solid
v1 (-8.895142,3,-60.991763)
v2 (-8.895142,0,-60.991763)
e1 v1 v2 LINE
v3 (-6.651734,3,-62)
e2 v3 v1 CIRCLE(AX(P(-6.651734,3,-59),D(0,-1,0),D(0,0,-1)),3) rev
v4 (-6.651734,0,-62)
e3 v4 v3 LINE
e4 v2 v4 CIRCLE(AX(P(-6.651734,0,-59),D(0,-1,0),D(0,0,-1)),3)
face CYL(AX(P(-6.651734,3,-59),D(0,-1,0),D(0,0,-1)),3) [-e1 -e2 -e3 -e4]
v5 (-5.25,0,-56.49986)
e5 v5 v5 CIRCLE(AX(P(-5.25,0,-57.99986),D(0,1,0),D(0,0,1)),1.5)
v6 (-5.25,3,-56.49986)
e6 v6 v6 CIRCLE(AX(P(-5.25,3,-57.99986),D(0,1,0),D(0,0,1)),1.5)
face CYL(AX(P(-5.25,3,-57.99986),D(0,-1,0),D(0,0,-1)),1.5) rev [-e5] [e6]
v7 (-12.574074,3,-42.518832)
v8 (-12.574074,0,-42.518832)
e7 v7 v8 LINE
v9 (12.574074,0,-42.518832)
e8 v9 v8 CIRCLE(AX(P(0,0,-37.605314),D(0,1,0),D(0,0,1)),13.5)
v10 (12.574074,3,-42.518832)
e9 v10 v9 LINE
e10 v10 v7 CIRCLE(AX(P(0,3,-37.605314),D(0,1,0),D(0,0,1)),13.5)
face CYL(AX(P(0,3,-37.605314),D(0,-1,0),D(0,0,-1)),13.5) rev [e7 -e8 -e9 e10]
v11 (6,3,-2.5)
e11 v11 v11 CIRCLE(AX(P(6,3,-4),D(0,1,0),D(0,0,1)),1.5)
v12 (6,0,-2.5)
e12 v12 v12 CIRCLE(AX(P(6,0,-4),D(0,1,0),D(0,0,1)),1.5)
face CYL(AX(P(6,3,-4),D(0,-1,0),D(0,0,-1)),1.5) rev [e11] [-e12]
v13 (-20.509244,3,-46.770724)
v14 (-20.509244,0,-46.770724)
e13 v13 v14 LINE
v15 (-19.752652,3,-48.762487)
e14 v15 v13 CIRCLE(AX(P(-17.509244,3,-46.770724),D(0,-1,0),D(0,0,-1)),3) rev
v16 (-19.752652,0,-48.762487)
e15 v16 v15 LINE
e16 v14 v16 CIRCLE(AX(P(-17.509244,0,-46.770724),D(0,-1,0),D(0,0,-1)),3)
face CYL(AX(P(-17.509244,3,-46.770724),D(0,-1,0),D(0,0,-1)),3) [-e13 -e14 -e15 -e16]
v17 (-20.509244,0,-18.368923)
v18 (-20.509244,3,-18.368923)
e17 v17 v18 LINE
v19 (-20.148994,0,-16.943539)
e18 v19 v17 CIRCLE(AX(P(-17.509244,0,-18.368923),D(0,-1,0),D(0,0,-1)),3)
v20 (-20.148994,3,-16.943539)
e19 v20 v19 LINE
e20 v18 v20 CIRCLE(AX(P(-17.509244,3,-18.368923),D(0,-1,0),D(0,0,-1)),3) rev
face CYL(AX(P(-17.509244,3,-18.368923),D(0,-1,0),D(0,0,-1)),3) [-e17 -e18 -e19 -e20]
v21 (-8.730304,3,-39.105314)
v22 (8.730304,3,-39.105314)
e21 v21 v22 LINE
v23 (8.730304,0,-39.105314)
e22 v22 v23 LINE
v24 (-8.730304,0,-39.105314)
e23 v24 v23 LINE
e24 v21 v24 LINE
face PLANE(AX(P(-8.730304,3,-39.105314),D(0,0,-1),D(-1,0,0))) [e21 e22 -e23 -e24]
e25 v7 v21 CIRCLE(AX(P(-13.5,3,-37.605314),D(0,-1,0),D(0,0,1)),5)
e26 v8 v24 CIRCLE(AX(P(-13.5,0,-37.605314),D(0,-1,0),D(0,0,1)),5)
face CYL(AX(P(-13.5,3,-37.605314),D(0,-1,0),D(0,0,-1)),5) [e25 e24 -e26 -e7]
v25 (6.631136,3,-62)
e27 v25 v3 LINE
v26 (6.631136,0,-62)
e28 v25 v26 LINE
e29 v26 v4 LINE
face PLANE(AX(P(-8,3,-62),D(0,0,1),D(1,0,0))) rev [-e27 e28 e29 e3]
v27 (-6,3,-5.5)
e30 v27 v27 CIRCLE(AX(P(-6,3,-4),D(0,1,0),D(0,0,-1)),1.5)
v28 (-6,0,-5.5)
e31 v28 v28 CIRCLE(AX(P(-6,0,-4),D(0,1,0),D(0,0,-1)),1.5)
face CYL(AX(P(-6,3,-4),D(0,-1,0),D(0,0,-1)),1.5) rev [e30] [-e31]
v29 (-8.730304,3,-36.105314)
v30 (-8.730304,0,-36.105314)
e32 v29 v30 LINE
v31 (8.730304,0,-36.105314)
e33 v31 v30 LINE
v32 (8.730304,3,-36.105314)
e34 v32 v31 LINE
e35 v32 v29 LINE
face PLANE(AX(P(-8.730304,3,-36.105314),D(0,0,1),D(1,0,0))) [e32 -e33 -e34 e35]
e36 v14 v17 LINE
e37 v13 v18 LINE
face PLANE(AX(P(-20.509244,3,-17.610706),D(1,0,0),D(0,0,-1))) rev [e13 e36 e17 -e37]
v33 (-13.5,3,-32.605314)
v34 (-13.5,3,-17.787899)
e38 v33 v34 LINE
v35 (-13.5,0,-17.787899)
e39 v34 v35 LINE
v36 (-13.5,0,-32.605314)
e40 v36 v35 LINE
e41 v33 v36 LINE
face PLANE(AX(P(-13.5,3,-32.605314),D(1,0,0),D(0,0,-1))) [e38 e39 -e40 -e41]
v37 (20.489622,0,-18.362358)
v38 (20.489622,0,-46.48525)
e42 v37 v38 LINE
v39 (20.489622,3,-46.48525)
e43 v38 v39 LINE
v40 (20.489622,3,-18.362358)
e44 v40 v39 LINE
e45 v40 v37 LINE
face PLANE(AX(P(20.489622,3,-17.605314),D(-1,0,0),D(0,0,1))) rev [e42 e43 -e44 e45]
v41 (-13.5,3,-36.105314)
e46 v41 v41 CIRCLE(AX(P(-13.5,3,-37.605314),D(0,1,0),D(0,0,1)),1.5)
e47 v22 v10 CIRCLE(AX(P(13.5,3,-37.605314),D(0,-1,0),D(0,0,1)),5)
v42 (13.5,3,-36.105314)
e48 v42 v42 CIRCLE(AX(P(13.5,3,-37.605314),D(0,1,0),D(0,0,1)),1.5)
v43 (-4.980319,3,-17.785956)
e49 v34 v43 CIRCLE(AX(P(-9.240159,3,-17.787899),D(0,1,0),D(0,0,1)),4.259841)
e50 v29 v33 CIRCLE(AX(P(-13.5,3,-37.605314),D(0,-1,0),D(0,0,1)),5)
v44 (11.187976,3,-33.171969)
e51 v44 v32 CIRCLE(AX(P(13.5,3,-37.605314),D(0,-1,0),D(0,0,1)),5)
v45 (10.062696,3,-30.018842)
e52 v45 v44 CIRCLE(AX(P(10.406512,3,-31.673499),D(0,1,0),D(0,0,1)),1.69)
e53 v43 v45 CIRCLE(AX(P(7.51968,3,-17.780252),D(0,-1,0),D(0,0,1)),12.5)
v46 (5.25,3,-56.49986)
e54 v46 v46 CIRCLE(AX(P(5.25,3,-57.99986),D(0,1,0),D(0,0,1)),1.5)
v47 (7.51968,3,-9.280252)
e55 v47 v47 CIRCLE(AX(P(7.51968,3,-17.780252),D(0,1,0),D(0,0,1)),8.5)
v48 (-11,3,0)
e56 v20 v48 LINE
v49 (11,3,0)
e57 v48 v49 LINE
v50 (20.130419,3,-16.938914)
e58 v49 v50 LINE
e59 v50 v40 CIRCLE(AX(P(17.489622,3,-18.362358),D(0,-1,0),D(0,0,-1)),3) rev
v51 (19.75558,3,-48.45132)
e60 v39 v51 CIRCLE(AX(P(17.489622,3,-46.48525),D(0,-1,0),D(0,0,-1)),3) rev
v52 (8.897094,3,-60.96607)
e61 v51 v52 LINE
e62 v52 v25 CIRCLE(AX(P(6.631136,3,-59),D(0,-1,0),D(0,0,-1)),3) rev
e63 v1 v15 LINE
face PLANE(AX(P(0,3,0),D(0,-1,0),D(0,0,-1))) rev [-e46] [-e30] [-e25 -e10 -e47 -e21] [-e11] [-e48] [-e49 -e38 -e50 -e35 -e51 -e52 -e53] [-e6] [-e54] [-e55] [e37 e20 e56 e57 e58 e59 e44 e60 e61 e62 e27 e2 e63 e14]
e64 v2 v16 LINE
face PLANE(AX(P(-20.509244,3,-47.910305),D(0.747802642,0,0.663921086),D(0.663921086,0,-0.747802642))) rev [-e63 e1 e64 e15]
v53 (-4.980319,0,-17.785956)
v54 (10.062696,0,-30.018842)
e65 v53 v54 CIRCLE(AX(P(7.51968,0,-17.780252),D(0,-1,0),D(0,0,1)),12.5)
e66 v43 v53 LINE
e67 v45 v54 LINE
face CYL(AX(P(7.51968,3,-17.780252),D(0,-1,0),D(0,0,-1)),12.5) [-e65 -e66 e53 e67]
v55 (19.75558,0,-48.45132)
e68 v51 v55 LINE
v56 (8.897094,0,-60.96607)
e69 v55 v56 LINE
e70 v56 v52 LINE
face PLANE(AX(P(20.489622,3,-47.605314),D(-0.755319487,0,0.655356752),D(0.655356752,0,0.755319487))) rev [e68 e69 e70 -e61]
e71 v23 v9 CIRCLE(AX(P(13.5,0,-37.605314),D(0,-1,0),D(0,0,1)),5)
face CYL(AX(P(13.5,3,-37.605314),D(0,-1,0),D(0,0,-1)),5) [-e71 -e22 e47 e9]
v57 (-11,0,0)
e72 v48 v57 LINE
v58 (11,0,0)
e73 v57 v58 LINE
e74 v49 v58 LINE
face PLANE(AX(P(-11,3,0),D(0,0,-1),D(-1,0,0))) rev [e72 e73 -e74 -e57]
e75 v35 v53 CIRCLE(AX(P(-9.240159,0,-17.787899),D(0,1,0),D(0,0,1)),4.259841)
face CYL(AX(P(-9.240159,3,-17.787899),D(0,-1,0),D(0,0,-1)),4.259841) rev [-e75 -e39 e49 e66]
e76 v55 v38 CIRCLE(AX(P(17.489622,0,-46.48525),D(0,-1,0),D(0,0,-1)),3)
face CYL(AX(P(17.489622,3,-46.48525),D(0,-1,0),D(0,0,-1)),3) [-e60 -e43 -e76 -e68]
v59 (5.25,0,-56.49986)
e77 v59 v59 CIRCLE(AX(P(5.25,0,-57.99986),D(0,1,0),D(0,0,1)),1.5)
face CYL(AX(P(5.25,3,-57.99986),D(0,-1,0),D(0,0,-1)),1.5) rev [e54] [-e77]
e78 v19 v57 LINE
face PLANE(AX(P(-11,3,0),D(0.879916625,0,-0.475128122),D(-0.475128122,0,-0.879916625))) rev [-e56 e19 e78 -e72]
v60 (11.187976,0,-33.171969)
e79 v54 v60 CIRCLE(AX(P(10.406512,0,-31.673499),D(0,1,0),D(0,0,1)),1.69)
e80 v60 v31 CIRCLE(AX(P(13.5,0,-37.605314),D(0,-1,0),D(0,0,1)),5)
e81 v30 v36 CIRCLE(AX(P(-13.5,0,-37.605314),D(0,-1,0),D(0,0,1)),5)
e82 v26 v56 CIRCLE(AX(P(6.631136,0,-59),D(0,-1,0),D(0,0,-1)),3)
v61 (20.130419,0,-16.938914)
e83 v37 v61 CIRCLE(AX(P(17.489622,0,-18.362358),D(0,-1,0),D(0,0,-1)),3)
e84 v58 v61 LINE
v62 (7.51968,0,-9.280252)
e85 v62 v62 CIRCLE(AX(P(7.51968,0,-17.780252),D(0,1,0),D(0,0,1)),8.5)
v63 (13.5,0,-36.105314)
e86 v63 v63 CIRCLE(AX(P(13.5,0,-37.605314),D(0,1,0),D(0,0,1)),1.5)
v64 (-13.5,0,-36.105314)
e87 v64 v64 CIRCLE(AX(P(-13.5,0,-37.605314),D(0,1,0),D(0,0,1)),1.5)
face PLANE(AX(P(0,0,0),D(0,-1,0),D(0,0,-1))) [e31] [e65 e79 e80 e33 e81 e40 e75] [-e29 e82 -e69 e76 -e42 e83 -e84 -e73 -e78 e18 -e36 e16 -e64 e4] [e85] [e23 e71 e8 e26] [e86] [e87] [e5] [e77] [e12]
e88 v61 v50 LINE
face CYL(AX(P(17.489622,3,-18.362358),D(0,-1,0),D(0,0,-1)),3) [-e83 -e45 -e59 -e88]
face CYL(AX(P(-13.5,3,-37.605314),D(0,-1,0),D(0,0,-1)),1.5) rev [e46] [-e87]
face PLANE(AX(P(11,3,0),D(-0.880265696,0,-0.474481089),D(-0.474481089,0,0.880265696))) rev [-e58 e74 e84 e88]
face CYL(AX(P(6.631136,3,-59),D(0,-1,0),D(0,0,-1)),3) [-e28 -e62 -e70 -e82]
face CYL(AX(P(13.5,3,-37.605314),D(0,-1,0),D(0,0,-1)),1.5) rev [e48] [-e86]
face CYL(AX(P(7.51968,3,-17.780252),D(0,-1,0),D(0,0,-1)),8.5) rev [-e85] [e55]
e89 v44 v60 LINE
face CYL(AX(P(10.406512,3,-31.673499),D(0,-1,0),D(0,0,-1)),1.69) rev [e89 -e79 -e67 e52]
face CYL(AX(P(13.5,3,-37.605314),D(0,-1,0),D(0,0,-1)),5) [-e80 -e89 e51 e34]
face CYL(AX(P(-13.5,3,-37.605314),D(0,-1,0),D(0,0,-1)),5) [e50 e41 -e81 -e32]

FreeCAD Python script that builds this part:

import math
import FreeCAD as App
import Part
import Sketcher


def edges_at(feature, points):
    """Names of the edges that pass closest to the given points."""
    edges = feature.Shape.Edges
    near = lambda p: min(range(len(edges)), key=lambda i: edges[i].distToShape(Part.Vertex(*p))[0])
    return sorted({f"Edge{near(p) + 1}" for p in points})

doc = App.newDocument("Part")
body = doc.addObject("PartDesign::Body", "Body")

# Sketch on XZ plane
sketch1 = doc.addObject("Sketcher::SketchObject", "Sketch")
body.addObject(sketch1)
sketch1.AttachmentSupport = (doc.XZ_Plane, [""])
sketch1.MapMode = "FlatFace"
sketch1.addGeometry([
    Part.LineSegment(App.Vector(-11, 0, 0), App.Vector(11, 0, 0)),  # 0
    Part.LineSegment(App.Vector(11, 0, 0), App.Vector(20.5, -17.6, 0)),  # 1
    Part.LineSegment(App.Vector(20.5, -17.6, 0), App.Vector(20.5, -47.6, 0)),  # 2
    Part.LineSegment(App.Vector(20.5, -47.6, 0), App.Vector(8, -62, 0)),  # 3
    Part.LineSegment(App.Vector(8, -62, 0), App.Vector(-8, -62, 0)),  # 4
    Part.LineSegment(App.Vector(-8, -62, 0), App.Vector(-20.5, -47.9, 0)),  # 5
    Part.LineSegment(App.Vector(-20.5, -47.9, 0), App.Vector(-20.5, -17.6, 0)),  # 6
    Part.LineSegment(App.Vector(-20.5, -17.6, 0), App.Vector(-11, 0, 0)),  # 7
    Part.Circle(App.Vector(-6, -4, 0), App.Vector(0, 0, 1), 1.5),  # 8
    Part.ArcOfCircle(Part.Circle(App.Vector(-13.5, -37.6, 0), App.Vector(0, 0, 1), 5), math.radians(17), math.radians(90)),  # 9
    Part.LineSegment(App.Vector(-8.7, -36.1, 0), App.Vector(8.7, -36.1, 0)),  # 10
    Part.ArcOfCircle(Part.Circle(App.Vector(13.5, -37.6, 0), App.Vector(0, 0, 1), 5), math.radians(118), math.radians(163)),  # 11
    Part.ArcOfCircle(Part.Circle(App.Vector(10.4, -31.7, 0), App.Vector(0, 0, 1), 1.7), math.radians(-62), math.radians(102)),  # 12
    Part.ArcOfCircle(Part.Circle(App.Vector(7.5, -17.8, 0), App.Vector(0, 0, 1), 12.5), math.radians(-180), math.radians(-78)),  # 13
    Part.ArcOfCircle(Part.Circle(App.Vector(-9.2, -17.8, 0), App.Vector(0, 0, 1), 4.3), math.radians(0), math.radians(180)),  # 14
    Part.LineSegment(App.Vector(-13.5, -17.8, 0), App.Vector(-13.5, -32.6, 0)),  # 15
    Part.Circle(App.Vector(6, -4, 0), App.Vector(0, 0, 1), 1.5),  # 16
    Part.Circle(App.Vector(7.5, -17.8, 0), App.Vector(0, 0, 1), 8.5),  # 17
    Part.Circle(App.Vector(-13.5, -37.6, 0), App.Vector(0, 0, 1), 1.5),  # 18
    Part.LineSegment(App.Vector(8.7, -39.1, 0), App.Vector(-8.7, -39.1, 0)),  # 19
    Part.ArcOfCircle(Part.Circle(App.Vector(-13.5, -37.6, 0), App.Vector(0, 0, 1), 5), math.radians(-79), math.radians(-17)),  # 20
    Part.ArcOfCircle(Part.Circle(App.Vector(0, -37.6, 0), App.Vector(0, 0, 1), 13.5), math.radians(-159), math.radians(-21)),  # 21
    Part.ArcOfCircle(Part.Circle(App.Vector(13.5, -37.6, 0), App.Vector(0, 0, 1), 5), math.radians(-163), math.radians(-101)),  # 22
    Part.Circle(App.Vector(-5.2, -58, 0), App.Vector(0, 0, 1), 1.5),  # 23
    Part.Circle(App.Vector(13.5, -37.6, 0), App.Vector(0, 0, 1), 1.5),  # 24
    Part.Circle(App.Vector(5.2, -58, 0), App.Vector(0, 0, 1), 1.5),  # 25
], False)
sketch1.addConstraint([
    Sketcher.Constraint("Coincident", 0, 2, 1, 1),
    Sketcher.Constraint("Coincident", 1, 2, 2, 1),
    Sketcher.Constraint("Coincident", 2, 2, 3, 1),
    Sketcher.Constraint("Coincident", 3, 2, 4, 1),
    Sketcher.Constraint("Coincident", 4, 2, 5, 1),
    Sketcher.Constraint("Coincident", 5, 2, 6, 1),
    Sketcher.Constraint("Coincident", 6, 2, 7, 1),
    Sketcher.Constraint("Coincident", 7, 2, 0, 1),
    Sketcher.Constraint("Coincident", 9, 1, 10, 1),
    Sketcher.Constraint("Coincident", 10, 2, 11, 2),
    Sketcher.Constraint("Tangent", 11, 1, 12, 1),
    Sketcher.Constraint("Tangent", 12, 2, 13, 2),
    Sketcher.Constraint("Tangent", 13, 1, 14, 1),
    Sketcher.Constraint("Tangent", 14, 2, 15, 1),
    Sketcher.Constraint("Coincident", 15, 2, 9, 2),
    Sketcher.Constraint("Coincident", 19, 2, 20, 2),
    Sketcher.Constraint("Coincident", 20, 1, 21, 1),
    Sketcher.Constraint("Coincident", 21, 2, 22, 2),
    Sketcher.Constraint("Coincident", 22, 1, 19, 1),
    Sketcher.Constraint("Horizontal", 0),
    Sketcher.Constraint("Vertical", 2),
    Sketcher.Constraint("Horizontal", 4),
    Sketcher.Constraint("Vertical", 6),
    Sketcher.Constraint("Horizontal", 10),
    Sketcher.Constraint("Vertical", 15),
    Sketcher.Constraint("Horizontal", 19),
    Sketcher.Constraint("Coincident", 17, 3, 13, 3),
    Sketcher.Constraint("Coincident", 18, 3, 9, 3),
    Sketcher.Constraint("Coincident", 20, 3, 9, 3),
    Sketcher.Constraint("Coincident", 22, 3, 11, 3),
    Sketcher.Constraint("Coincident", 24, 3, 11, 3),
    Sketcher.Constraint("Equal", 9, 11),
    Sketcher.Constraint("Equal", 8, 16),
    Sketcher.Constraint("Equal", 16, 18),
    Sketcher.Constraint("Equal", 11, 20),
    Sketcher.Constraint("Equal", 20, 22),
    Sketcher.Constraint("Equal", 18, 23),
    Sketcher.Constraint("Equal", 23, 24),
    Sketcher.Constraint("Equal", 24, 25),
    Sketcher.Constraint("Symmetric", 0, 2, 7, 2, -1, 1),
    Sketcher.Constraint("Symmetric", 9, 3, 11, 3, -2),
    Sketcher.Constraint("Symmetric", 8, 3, 16, 3, -2),
    Sketcher.Constraint("Symmetric", 23, 3, 25, 3, -2),
    Sketcher.Constraint("PointOnObject", 21, 3, -2),
    Sketcher.Constraint("Horizontal", 20, 3, 21, 3),
    Sketcher.Constraint("Vertical", 20, 3, 14, 2),
    Sketcher.Constraint("Vertical", 9, 1, 19, 2),
    Sketcher.Constraint("Diameter", 8, 3.0),
    Sketcher.Constraint("Diameter", 17, 17.0),
    Sketcher.Constraint("Radius", 9, 5.0),
    Sketcher.Constraint("Radius", 13, 12.5),
    Sketcher.Constraint("Radius", 21, 13.5),
    Sketcher.Constraint("DistanceX", 0, 1, 0, 2, 22.0),
    Sketcher.Constraint("DistanceX", 4, 2, 4, 1, 16.0),
    Sketcher.Constraint("DistanceY", 2, 2, 2, 1, 30.0),
    Sketcher.Constraint("Radius", 12, 1.69),
    Sketcher.Constraint("Distance", 1, 20.0),
    Sketcher.Constraint("DistanceX", 8, 3, -1, 1, 6.0),
    Sketcher.Constraint("DistanceY", 8, 3, -1, 1, 4.0),
    Sketcher.Constraint("DistanceX", -1, 1, 3, 2, 8.0),
    Sketcher.Constraint("DistanceY", 3, 2, -1, 1, 62.0),
    Sketcher.Constraint("DistanceX", 9, 3, 11, 3, 27.0),
    Sketcher.Constraint("DistanceY", 2, 2, 24, 3, 10.0),
    Sketcher.Constraint("DistanceY", 19, 2, 9, 1, 3.0),
    Sketcher.Constraint("DistanceX", 23, 3, 25, 3, 10.5),
    Sketcher.Constraint("Radius", 14, 4.259841),
    Sketcher.Constraint("DistanceY", 6, 1, 6, 2, 30.299599),
    Sketcher.Constraint("DistanceY", 12, 3, -1, 1, 31.673499),
    Sketcher.Constraint("DistanceY", 14, 3, -1, 1, 17.787899),
    Sketcher.Constraint("Distance", 5, 18.841462),
    Sketcher.Constraint("DistanceY", 15, 2, 15, 1, 14.817415),
    Sketcher.Constraint("DistanceY", 23, 3, -1, 1, 57.99986),
    Sketcher.Constraint("DistanceY", 5, 2, 18, 3, 10.304991),
])
pad1 = doc.addObject("PartDesign::Pad", "Pad")
body.addObject(pad1)
pad1.Profile = sketch1
pad1.Length = 3
pad1.Reversed = True
doc.recompute()

fillet = doc.addObject("PartDesign::Fillet", "Fillet")
body.addObject(fillet)
fillet.Base = (pad1, edges_at(pad1, [
    (-20.509, 1.5, -17.611),
    (-20.509, 1.5, -47.91),
    (-8, 1.5, -62),
    (8, 1.5, -62),
    (20.49, 1.5, -47.605),
    (20.49, 1.5, -17.605),
]))
fillet.Radius = 3

doc.recompute()
